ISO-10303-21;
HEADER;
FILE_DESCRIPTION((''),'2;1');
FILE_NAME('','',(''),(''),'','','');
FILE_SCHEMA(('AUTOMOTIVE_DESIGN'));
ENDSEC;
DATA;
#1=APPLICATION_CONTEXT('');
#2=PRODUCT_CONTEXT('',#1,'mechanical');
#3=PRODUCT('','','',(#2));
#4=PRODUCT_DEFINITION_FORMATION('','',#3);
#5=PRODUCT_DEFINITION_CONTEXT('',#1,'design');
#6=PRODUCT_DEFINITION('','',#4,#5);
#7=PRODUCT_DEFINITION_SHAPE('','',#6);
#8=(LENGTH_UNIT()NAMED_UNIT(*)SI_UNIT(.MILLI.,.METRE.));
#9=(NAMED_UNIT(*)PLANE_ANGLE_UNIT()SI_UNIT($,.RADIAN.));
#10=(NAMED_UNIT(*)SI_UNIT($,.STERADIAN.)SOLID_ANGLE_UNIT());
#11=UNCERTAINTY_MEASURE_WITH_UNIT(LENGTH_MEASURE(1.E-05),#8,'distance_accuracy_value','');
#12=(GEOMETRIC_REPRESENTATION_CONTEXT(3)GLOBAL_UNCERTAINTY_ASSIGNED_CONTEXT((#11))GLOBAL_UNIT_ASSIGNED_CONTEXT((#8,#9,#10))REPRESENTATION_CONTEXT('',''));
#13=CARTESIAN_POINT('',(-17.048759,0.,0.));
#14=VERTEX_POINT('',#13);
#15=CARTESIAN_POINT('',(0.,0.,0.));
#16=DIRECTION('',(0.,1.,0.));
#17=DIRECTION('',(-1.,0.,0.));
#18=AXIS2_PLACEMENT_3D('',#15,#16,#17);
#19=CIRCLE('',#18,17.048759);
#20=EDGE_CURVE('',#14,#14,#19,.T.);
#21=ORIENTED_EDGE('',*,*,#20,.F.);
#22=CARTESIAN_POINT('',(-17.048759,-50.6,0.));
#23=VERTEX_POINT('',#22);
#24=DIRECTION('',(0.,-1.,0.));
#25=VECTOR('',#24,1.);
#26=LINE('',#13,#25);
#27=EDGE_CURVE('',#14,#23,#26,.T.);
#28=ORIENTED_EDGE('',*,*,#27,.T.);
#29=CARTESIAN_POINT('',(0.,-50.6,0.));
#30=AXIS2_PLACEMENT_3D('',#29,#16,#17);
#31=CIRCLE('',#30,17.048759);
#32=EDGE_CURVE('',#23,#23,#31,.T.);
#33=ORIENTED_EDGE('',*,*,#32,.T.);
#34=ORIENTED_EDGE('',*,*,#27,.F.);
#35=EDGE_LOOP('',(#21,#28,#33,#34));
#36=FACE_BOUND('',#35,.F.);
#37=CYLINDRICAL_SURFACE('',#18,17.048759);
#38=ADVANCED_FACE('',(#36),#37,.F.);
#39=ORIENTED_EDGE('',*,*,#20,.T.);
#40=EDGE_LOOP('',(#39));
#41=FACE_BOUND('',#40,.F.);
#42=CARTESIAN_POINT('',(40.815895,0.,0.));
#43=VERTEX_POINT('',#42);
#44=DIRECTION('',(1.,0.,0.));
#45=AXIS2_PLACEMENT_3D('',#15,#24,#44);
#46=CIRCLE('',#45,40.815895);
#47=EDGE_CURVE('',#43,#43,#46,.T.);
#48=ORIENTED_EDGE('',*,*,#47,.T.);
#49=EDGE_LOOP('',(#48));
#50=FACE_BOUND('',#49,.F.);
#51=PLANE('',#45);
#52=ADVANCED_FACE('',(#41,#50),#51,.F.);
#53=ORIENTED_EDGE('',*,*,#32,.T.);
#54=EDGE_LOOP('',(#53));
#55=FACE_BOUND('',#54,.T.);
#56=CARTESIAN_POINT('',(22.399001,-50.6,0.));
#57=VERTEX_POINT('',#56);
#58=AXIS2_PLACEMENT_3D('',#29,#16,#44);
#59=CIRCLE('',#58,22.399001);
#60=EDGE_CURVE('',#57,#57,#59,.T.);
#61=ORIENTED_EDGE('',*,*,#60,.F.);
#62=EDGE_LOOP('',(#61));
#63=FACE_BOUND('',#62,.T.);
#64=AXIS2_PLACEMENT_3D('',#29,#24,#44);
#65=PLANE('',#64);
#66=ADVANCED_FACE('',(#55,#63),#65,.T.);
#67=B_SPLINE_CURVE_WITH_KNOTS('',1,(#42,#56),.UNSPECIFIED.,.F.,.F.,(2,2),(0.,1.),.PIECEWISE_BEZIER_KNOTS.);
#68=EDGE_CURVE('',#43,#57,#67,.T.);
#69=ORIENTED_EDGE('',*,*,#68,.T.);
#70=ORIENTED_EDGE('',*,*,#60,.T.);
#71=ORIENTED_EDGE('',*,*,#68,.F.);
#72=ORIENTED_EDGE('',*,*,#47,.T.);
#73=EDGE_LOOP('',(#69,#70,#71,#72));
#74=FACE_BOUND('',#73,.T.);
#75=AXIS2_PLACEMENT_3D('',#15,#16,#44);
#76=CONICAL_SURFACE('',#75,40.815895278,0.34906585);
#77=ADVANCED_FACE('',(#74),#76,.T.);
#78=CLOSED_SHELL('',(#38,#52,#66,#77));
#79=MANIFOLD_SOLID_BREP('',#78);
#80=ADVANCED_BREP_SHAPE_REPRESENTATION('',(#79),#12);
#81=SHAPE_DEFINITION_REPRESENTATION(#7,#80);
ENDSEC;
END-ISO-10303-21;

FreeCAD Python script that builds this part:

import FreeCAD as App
import Part
import Sketcher

V = App.Vector

doc = App.newDocument("Part")
body = doc.addObject("PartDesign::Body", "Body")

sketch1 = body.newObject("Sketcher::SketchObject", "Sketch")
sketch1.AttachmentSupport = (doc.getObject("XZ_Plane"), [""])
sketch1.MapMode = "FlatFace"
sketch1.addGeometry(Part.Circle(V(0, 0, 0), V(0, 0, 1), 40.815895), False)
sketch1.addConstraint(Sketcher.Constraint("Coincident", 0, 3, -1, 1))
sketch1.addConstraint(Sketcher.Constraint("Diameter", 0, 81.631791))
pad1 = body.newObject("PartDesign::Pad", "Pad")
pad1.Profile = sketch1
pad1.Length = 50.6
pad1.TaperAngle = -20

sketch2 = body.newObject("Sketcher::SketchObject", "Sketch001")
sketch2.AttachmentSupport = (doc.getObject("XZ_Plane"), [""])
sketch2.MapMode = "FlatFace"
sketch2.addGeometry(Part.Circle(V(0, 0, 0), V(0, 0, 1), 17.048759), False)
sketch2.addConstraint(Sketcher.Constraint("Coincident", 0, 3, -1, 1))
sketch2.addConstraint(Sketcher.Constraint("Diameter", 0, 34.097518))
pocket1 = body.newObject("PartDesign::Pocket", "Pocket")
pocket1.Profile = sketch2
pocket1.Type = "ThroughAll"
pocket1.Reversed = True

doc.recompute()
